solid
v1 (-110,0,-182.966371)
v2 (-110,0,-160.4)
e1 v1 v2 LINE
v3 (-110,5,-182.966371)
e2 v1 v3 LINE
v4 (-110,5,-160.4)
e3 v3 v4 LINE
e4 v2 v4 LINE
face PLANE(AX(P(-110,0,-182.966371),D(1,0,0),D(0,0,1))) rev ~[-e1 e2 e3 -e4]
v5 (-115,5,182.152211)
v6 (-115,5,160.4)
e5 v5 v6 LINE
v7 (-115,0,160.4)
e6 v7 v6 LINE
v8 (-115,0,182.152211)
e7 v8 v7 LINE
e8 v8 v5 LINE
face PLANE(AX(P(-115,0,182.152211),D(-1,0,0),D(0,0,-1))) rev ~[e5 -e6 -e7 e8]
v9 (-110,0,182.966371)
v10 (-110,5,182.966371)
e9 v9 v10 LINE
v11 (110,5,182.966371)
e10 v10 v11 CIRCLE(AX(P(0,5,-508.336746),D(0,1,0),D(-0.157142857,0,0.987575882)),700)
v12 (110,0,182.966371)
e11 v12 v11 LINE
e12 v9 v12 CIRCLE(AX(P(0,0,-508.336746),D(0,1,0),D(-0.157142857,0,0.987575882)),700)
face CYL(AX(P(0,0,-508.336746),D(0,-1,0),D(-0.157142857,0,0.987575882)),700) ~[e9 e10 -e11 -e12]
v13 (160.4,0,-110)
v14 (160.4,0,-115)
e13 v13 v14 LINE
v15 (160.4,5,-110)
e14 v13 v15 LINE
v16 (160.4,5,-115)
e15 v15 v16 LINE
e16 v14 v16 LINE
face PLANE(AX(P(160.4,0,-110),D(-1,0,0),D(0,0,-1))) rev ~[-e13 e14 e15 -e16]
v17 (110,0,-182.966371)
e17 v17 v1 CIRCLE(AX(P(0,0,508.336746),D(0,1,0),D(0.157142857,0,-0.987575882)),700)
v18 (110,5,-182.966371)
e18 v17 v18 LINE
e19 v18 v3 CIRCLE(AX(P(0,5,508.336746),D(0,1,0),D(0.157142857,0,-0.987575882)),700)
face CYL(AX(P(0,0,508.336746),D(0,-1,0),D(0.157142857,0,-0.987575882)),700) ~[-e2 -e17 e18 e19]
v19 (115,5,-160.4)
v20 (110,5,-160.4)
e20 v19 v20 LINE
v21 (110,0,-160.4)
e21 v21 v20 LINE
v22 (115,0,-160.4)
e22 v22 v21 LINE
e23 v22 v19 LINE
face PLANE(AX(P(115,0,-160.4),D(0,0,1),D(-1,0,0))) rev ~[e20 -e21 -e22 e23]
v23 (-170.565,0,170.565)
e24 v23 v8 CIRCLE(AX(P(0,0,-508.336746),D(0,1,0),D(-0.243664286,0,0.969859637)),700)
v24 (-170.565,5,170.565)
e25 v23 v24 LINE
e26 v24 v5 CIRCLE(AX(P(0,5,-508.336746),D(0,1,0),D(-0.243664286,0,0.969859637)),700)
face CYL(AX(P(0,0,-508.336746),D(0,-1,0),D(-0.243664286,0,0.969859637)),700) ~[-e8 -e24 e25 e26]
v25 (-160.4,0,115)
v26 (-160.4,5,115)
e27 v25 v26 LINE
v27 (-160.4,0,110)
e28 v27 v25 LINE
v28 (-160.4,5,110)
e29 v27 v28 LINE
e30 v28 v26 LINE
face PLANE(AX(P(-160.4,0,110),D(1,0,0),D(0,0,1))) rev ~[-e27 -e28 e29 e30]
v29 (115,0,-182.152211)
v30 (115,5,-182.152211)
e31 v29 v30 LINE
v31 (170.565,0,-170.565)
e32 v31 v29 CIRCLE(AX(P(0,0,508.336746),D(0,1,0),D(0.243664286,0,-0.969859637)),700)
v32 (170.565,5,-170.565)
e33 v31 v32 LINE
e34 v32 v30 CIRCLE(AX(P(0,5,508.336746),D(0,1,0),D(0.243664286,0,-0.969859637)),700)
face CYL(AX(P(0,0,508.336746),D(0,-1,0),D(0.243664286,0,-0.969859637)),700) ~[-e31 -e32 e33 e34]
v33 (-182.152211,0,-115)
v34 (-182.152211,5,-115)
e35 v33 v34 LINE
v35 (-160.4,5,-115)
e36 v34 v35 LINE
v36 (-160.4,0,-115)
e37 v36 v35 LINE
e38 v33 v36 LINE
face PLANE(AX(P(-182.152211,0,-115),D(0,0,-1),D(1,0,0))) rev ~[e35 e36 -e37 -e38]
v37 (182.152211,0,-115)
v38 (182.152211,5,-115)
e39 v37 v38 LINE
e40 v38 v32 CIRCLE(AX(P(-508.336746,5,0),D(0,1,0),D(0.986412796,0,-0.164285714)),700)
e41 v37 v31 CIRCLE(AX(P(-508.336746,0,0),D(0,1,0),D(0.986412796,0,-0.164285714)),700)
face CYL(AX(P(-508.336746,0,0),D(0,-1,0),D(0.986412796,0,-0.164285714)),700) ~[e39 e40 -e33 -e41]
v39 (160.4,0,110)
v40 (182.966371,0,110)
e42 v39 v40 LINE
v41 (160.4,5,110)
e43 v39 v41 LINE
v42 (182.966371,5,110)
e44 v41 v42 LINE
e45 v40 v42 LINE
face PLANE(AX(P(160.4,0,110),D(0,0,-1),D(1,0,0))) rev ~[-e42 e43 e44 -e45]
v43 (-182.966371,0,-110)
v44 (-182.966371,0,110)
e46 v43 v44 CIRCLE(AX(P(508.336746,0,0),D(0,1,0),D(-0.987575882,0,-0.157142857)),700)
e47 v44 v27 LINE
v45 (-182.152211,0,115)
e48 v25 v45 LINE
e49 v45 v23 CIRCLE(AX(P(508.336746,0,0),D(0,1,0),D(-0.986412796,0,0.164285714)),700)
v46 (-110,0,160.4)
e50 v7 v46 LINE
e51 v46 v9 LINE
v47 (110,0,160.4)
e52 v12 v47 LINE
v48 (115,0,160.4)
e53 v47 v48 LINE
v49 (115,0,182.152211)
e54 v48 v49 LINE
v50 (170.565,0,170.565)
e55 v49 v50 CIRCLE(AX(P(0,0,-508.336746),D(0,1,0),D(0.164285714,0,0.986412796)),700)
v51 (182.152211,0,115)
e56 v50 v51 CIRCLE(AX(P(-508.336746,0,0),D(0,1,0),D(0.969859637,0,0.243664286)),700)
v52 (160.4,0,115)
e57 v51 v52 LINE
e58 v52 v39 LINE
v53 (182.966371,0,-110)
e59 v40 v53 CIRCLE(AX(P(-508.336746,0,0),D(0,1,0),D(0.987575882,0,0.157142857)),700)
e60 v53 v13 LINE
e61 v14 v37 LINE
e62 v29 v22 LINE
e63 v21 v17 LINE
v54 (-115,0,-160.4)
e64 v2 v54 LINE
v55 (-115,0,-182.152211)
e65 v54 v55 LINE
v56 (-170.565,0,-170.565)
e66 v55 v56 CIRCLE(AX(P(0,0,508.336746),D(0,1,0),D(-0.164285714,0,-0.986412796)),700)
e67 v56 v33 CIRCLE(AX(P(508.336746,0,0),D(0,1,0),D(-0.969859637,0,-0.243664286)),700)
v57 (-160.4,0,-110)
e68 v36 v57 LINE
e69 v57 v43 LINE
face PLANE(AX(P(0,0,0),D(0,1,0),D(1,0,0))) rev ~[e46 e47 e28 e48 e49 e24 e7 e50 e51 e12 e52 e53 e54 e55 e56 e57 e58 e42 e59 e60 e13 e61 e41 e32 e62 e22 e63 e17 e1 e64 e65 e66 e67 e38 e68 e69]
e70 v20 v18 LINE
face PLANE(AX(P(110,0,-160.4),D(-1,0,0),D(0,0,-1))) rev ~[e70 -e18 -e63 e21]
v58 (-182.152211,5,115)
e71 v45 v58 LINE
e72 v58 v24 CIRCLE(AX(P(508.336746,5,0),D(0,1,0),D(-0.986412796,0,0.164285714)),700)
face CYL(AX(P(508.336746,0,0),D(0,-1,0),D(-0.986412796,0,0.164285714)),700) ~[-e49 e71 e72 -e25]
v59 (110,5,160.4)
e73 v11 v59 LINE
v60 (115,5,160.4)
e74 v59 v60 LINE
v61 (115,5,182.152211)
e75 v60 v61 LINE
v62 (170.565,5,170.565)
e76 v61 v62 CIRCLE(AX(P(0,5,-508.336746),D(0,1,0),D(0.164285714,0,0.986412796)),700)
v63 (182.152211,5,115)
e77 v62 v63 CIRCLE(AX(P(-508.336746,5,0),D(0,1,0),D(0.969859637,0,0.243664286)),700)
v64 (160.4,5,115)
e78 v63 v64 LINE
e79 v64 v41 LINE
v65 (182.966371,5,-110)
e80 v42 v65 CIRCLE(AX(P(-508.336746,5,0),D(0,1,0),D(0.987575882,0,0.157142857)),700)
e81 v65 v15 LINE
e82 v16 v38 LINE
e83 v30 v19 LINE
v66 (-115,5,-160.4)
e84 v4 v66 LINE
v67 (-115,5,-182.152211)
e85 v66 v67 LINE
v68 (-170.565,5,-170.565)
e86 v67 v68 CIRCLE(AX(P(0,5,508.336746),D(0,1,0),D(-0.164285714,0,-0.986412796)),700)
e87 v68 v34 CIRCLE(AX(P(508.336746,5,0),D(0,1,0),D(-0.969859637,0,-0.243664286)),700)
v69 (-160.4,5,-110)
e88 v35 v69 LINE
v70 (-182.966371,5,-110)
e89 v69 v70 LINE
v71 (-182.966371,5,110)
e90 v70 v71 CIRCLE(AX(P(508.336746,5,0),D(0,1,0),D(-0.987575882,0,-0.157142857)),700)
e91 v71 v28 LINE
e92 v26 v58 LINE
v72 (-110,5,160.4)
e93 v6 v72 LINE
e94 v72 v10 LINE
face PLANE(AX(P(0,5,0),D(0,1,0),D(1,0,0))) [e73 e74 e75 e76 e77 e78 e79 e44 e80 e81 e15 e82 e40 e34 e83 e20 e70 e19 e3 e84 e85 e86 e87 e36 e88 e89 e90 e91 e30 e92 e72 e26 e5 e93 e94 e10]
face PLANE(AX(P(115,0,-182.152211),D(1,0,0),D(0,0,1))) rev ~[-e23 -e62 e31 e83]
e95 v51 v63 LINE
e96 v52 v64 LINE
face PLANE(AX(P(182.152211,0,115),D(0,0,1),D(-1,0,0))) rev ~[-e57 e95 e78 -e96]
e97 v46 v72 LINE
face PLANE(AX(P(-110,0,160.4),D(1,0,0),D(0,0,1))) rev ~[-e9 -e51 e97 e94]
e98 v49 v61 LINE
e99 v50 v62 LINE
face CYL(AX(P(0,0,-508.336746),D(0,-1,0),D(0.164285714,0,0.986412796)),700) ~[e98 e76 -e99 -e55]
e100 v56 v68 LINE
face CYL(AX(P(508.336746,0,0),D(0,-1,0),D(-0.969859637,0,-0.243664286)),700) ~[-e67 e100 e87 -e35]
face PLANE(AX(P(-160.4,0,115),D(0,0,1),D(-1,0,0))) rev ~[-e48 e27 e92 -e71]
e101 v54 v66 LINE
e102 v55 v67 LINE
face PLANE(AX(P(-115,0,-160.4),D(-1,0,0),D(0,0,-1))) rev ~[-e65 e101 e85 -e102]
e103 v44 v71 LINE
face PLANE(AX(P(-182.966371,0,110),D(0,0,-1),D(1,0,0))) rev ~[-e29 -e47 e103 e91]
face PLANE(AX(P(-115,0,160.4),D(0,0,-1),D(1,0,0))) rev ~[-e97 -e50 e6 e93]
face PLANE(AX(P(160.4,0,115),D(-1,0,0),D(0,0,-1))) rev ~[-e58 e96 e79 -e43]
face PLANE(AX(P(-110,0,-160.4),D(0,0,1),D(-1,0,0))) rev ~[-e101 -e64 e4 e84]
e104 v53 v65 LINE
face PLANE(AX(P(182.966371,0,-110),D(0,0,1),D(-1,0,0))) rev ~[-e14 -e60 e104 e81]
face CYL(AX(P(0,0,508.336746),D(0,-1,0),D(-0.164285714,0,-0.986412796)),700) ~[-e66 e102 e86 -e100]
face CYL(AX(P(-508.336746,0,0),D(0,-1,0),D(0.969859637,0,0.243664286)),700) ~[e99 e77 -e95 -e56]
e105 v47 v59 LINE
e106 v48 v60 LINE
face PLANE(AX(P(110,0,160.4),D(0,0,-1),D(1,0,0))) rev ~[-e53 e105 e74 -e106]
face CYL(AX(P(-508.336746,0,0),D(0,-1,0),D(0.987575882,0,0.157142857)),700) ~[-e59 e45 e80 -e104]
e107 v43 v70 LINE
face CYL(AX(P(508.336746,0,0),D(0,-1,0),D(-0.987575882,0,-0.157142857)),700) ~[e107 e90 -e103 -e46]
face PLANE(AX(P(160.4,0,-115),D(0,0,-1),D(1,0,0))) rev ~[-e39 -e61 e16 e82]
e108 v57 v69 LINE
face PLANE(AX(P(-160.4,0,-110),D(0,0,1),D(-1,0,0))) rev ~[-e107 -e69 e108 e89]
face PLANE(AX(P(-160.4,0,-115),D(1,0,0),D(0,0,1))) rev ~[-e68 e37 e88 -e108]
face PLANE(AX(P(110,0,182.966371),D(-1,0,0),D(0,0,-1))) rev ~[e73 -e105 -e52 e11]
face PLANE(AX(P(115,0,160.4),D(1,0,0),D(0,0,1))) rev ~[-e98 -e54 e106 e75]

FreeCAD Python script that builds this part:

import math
import FreeCAD as App
import Part
import Sketcher

V = App.Vector

doc = App.newDocument("Part")
body = doc.addObject("PartDesign::Body", "Body")

# Sketch on XZ plane
sketch1 = body.newObject("Sketcher::SketchObject", "Sketch")
sketch1.AttachmentSupport = (doc.getObject("XZ_Plane"), [""])
sketch1.MapMode = "FlatFace"
sketch1.addGeometry(Part.LineSegment(V(115, -160, 0), V(110, -160, 0)), False)
sketch1.addGeometry(Part.LineSegment(V(110, -160, 0), V(110, -183, 0)), False)
sketch1.addGeometry(Part.ArcOfCircle(Part.Circle(V(0, 508, 0), V(0, 0, 1), 700), math.radians(-99.04), math.radians(-80.96)), False)
sketch1.addGeometry(Part.LineSegment(V(-110, -183, 0), V(-110, -160, 0)), False)
sketch1.addGeometry(Part.LineSegment(V(-110, -160, 0), V(-115, -160, 0)), False)
sketch1.addGeometry(Part.LineSegment(V(-115, -160, 0), V(-115, -182, 0)), False)
sketch1.addGeometry(Part.ArcOfCircle(Part.Circle(V(0, 508, 0), V(0, 0, 1), 700), math.radians(-104.1), math.radians(-99.46)), False)
sketch1.addGeometry(Part.ArcOfCircle(Part.Circle(V(508, 0, 0), V(0, 0, 1), 700), math.radians(-170.54), math.radians(-165.9)), False)
sketch1.addGeometry(Part.LineSegment(V(-182, -115, 0), V(-160, -115, 0)), False)
sketch1.addGeometry(Part.LineSegment(V(-160, -115, 0), V(-160, -110, 0)), False)
sketch1.addGeometry(Part.LineSegment(V(-160, -110, 0), V(-183, -110, 0)), False)
sketch1.addGeometry(Part.ArcOfCircle(Part.Circle(V(508, 0, 0), V(0, 0, 1), 700), math.radians(170.96), math.radians(189.04)), False)
sketch1.addGeometry(Part.LineSegment(V(-183, 110, 0), V(-160, 110, 0)), False)
sketch1.addGeometry(Part.LineSegment(V(-160, 110, 0), V(-160, 115, 0)), False)
sketch1.addGeometry(Part.LineSegment(V(-160, 115, 0), V(-182, 115, 0)), False)
sketch1.addGeometry(Part.ArcOfCircle(Part.Circle(V(508, 0, 0), V(0, 0, 1), 700), math.radians(165.9), math.radians(170.54)), False)
sketch1.addGeometry(Part.ArcOfCircle(Part.Circle(V(0, -508, 0), V(0, 0, 1), 700), math.radians(99.46), math.radians(104.1)), False)
sketch1.addGeometry(Part.LineSegment(V(-115, 182, 0), V(-115, 160, 0)), False)
sketch1.addGeometry(Part.LineSegment(V(-115, 160, 0), V(-110, 160, 0)), False)
sketch1.addGeometry(Part.LineSegment(V(-110, 160, 0), V(-110, 183, 0)), False)
sketch1.addGeometry(Part.ArcOfCircle(Part.Circle(V(0, -508, 0), V(0, 0, 1), 700), math.radians(80.96), math.radians(99.04)), False)
sketch1.addGeometry(Part.LineSegment(V(110, 183, 0), V(110, 160, 0)), False)
sketch1.addGeometry(Part.LineSegment(V(110, 160, 0), V(115, 160, 0)), False)
sketch1.addGeometry(Part.LineSegment(V(115, 160, 0), V(115, 182, 0)), False)
sketch1.addGeometry(Part.ArcOfCircle(Part.Circle(V(0, -508, 0), V(0, 0, 1), 700), math.radians(75.9), math.radians(80.54)), False)
sketch1.addGeometry(Part.ArcOfCircle(Part.Circle(V(-508, 0, 0), V(0, 0, 1), 700), math.radians(9.46), math.radians(14.1)), False)
sketch1.addGeometry(Part.LineSegment(V(182, 115, 0), V(160, 115, 0)), False)
sketch1.addGeometry(Part.LineSegment(V(160, 115, 0), V(160, 110, 0)), False)
sketch1.addGeometry(Part.LineSegment(V(160, 110, 0), V(183, 110, 0)), False)
sketch1.addGeometry(Part.ArcOfCircle(Part.Circle(V(-508, 0, 0), V(0, 0, 1), 700), math.radians(-9.04), math.radians(9.04)), False)
sketch1.addGeometry(Part.LineSegment(V(183, -110, 0), V(160, -110, 0)), False)
sketch1.addGeometry(Part.LineSegment(V(160, -110, 0), V(160, -115, 0)), False)
sketch1.addGeometry(Part.LineSegment(V(160, -115, 0), V(182, -115, 0)), False)
sketch1.addGeometry(Part.ArcOfCircle(Part.Circle(V(-508, 0, 0), V(0, 0, 1), 700), math.radians(-14.1), math.radians(-9.46)), False)
sketch1.addGeometry(Part.ArcOfCircle(Part.Circle(V(0, 508, 0), V(0, 0, 1), 700), math.radians(-80.54), math.radians(-75.9)), False)
sketch1.addGeometry(Part.LineSegment(V(115, -182, 0), V(115, -160, 0)), False)
sketch1.addConstraint(Sketcher.Constraint("Coincident", 0, 2, 1, 1))
sketch1.addConstraint(Sketcher.Constraint("Coincident", 1, 2, 2, 2))
sketch1.addConstraint(Sketcher.Constraint("Coincident", 2, 1, 3, 1))
sketch1.addConstraint(Sketcher.Constraint("Coincident", 3, 2, 4, 1))
sketch1.addConstraint(Sketcher.Constraint("Coincident", 4, 2, 5, 1))
sketch1.addConstraint(Sketcher.Constraint("Coincident", 5, 2, 6, 2))
sketch1.addConstraint(Sketcher.Constraint("Coincident", 6, 1, 7, 2))
sketch1.addConstraint(Sketcher.Constraint("Coincident", 7, 1, 8, 1))
sketch1.addConstraint(Sketcher.Constraint("Coincident", 8, 2, 9, 1))
sketch1.addConstraint(Sketcher.Constraint("Coincident", 9, 2, 10, 1))
sketch1.addConstraint(Sketcher.Constraint("Coincident", 10, 2, 11, 2))
sketch1.addConstraint(Sketcher.Constraint("Coincident", 11, 1, 12, 1))
sketch1.addConstraint(Sketcher.Constraint("Coincident", 12, 2, 13, 1))
sketch1.addConstraint(Sketcher.Constraint("Coincident", 13, 2, 14, 1))
sketch1.addConstraint(Sketcher.Constraint("Coincident", 14, 2, 15, 2))
sketch1.addConstraint(Sketcher.Constraint("Coincident", 15, 1, 16, 2))
sketch1.addConstraint(Sketcher.Constraint("Coincident", 16, 1, 17, 1))
sketch1.addConstraint(Sketcher.Constraint("Coincident", 17, 2, 18, 1))
sketch1.addConstraint(Sketcher.Constraint("Coincident", 18, 2, 19, 1))
sketch1.addConstraint(Sketcher.Constraint("Coincident", 19, 2, 20, 2))
sketch1.addConstraint(Sketcher.Constraint("Coincident", 20, 1, 21, 1))
sketch1.addConstraint(Sketcher.Constraint("Coincident", 21, 2, 22, 1))
sketch1.addConstraint(Sketcher.Constraint("Coincident", 22, 2, 23, 1))
sketch1.addConstraint(Sketcher.Constraint("Coincident", 23, 2, 24, 2))
sketch1.addConstraint(Sketcher.Constraint("Coincident", 24, 1, 25, 2))
sketch1.addConstraint(Sketcher.Constraint("Coincident", 25, 1, 26, 1))
sketch1.addConstraint(Sketcher.Constraint("Coincident", 26, 2, 27, 1))
sketch1.addConstraint(Sketcher.Constraint("Coincident", 27, 2, 28, 1))
sketch1.addConstraint(Sketcher.Constraint("Coincident", 28, 2, 29, 2))
sketch1.addConstraint(Sketcher.Constraint("Coincident", 29, 1, 30, 1))
sketch1.addConstraint(Sketcher.Constraint("Coincident", 30, 2, 31, 1))
sketch1.addConstraint(Sketcher.Constraint("Coincident", 31, 2, 32, 1))
sketch1.addConstraint(Sketcher.Constraint("Coincident", 32, 2, 33, 2))
sketch1.addConstraint(Sketcher.Constraint("Coincident", 33, 1, 34, 2))
sketch1.addConstraint(Sketcher.Constraint("Coincident", 34, 1, 35, 1))
sketch1.addConstraint(Sketcher.Constraint("Coincident", 35, 2, 0, 1))
sketch1.addConstraint(Sketcher.Constraint("Horizontal", 0))
sketch1.addConstraint(Sketcher.Constraint("Vertical", 1))
sketch1.addConstraint(Sketcher.Constraint("Vertical", 3))
sketch1.addConstraint(Sketcher.Constraint("Horizontal", 4))
sketch1.addConstraint(Sketcher.Constraint("Vertical", 5))
sketch1.addConstraint(Sketcher.Constraint("Horizontal", 8))
sketch1.addConstraint(Sketcher.Constraint("Vertical", 9))
sketch1.addConstraint(Sketcher.Constraint("Horizontal", 10))
sketch1.addConstraint(Sketcher.Constraint("Horizontal", 12))
sketch1.addConstraint(Sketcher.Constraint("Vertical", 13))
sketch1.addConstraint(Sketcher.Constraint("Horizontal", 14))
sketch1.addConstraint(Sketcher.Constraint("Vertical", 17))
sketch1.addConstraint(Sketcher.Constraint("Horizontal", 18))
sketch1.addConstraint(Sketcher.Constraint("Vertical", 19))
sketch1.addConstraint(Sketcher.Constraint("Vertical", 21))
sketch1.addConstraint(Sketcher.Constraint("Horizontal", 22))
sketch1.addConstraint(Sketcher.Constraint("Vertical", 23))
sketch1.addConstraint(Sketcher.Constraint("Horizontal", 26))
sketch1.addConstraint(Sketcher.Constraint("Vertical", 27))
sketch1.addConstraint(Sketcher.Constraint("Horizontal", 28))
sketch1.addConstraint(Sketcher.Constraint("Horizontal", 30))
sketch1.addConstraint(Sketcher.Constraint("Vertical", 31))
sketch1.addConstraint(Sketcher.Constraint("Horizontal", 32))
sketch1.addConstraint(Sketcher.Constraint("Vertical", 35))
sketch1.addConstraint(Sketcher.Constraint("Coincident", 6, 3, 2, 3))
sketch1.addConstraint(Sketcher.Constraint("Coincident", 11, 3, 7, 3))
sketch1.addConstraint(Sketcher.Constraint("Coincident", 15, 3, 7, 3))
sketch1.addConstraint(Sketcher.Constraint("Coincident", 20, 3, 16, 3))
sketch1.addConstraint(Sketcher.Constraint("Coincident", 24, 3, 16, 3))
sketch1.addConstraint(Sketcher.Constraint("Coincident", 29, 3, 25, 3))
sketch1.addConstraint(Sketcher.Constraint("Coincident", 33, 3, 25, 3))
sketch1.addConstraint(Sketcher.Constraint("Coincident", 34, 3, 2, 3))
sketch1.addConstraint(Sketcher.Constraint("Equal", 2, 6))
sketch1.addConstraint(Sketcher.Constraint("Equal", 6, 7))
sketch1.addConstraint(Sketcher.Constraint("Equal", 7, 11))
sketch1.addConstraint(Sketcher.Constraint("Equal", 11, 15))
sketch1.addConstraint(Sketcher.Constraint("Equal", 15, 16))
sketch1.addConstraint(Sketcher.Constraint("Equal", 16, 20))
sketch1.addConstraint(Sketcher.Constraint("Equal", 20, 24))
sketch1.addConstraint(Sketcher.Constraint("Equal", 24, 25))
sketch1.addConstraint(Sketcher.Constraint("Equal", 25, 29))
sketch1.addConstraint(Sketcher.Constraint("Equal", 29, 33))
sketch1.addConstraint(Sketcher.Constraint("Equal", 33, 34))
sketch1.addConstraint(Sketcher.Constraint("Symmetric", 2, 3, 16, 3, -1, 1))
sketch1.addConstraint(Sketcher.Constraint("Symmetric", 7, 3, 25, 3, -1, 1))
sketch1.addConstraint(Sketcher.Constraint("Symmetric", 0, 2, 18, 2, -1, 1))
sketch1.addConstraint(Sketcher.Constraint("Symmetric", 3, 2, 21, 2, -1, 1))
sketch1.addConstraint(Sketcher.Constraint("Symmetric", 8, 2, 26, 2, -1, 1))
sketch1.addConstraint(Sketcher.Constraint("Symmetric", 12, 2, 30, 2, -1, 1))
sketch1.addConstraint(Sketcher.Constraint("Symmetric", 0, 2, 3, 2, -2))
sketch1.addConstraint(Sketcher.Constraint("Symmetric", 13, 2, 26, 2, -2))
sketch1.addConstraint(Sketcher.Constraint("PointOnObject", 2, 3, -2))
sketch1.addConstraint(Sketcher.Constraint("PointOnObject", 7, 3, -1))
sketch1.addConstraint(Sketcher.Constraint("Horizontal", 12, 2, 27, 2))
sketch1.addConstraint(Sketcher.Constraint("Horizontal", 8, 2, 31, 2))
sketch1.addConstraint(Sketcher.Constraint("Equal", 0, 4))
sketch1.addConstraint(Sketcher.Constraint("Equal", 10, 12))
sketch1.addConstraint(Sketcher.Constraint("Equal", 4, 18))
sketch1.addConstraint(Sketcher.Constraint("Equal", 18, 22))
sketch1.addConstraint(Sketcher.Constraint("Equal", 30, 1))
sketch1.addConstraint(Sketcher.Constraint("Equal", 32, 5))
sketch1.addConstraint(Sketcher.Constraint("Equal", 22, 9))
sketch1.addConstraint(Sketcher.Constraint("Radius", 2, 700.0))
sketch1.addConstraint(Sketcher.Constraint("DistanceX", 0, 2, 0, 1, 5.0))
sketch1.addConstraint(Sketcher.Constraint("DistanceX", -1, 1, 0, 2, 110.0))
sketch1.addConstraint(Sketcher.Constraint("DistanceY", 0, 2, -1, 1, 160.4))
sketch1.addConstraint(Sketcher.Constraint("DistanceX", 8, 2, -1, 1, 160.4))
sketch1.addConstraint(Sketcher.Constraint("DistanceX", 8, 1, 8, 2, 21.752211))
pad1 = body.newObject("PartDesign::Pad", "Pad")
pad1.Profile = sketch1
pad1.Length = 5
pad1.Reversed = True

doc.recompute()
